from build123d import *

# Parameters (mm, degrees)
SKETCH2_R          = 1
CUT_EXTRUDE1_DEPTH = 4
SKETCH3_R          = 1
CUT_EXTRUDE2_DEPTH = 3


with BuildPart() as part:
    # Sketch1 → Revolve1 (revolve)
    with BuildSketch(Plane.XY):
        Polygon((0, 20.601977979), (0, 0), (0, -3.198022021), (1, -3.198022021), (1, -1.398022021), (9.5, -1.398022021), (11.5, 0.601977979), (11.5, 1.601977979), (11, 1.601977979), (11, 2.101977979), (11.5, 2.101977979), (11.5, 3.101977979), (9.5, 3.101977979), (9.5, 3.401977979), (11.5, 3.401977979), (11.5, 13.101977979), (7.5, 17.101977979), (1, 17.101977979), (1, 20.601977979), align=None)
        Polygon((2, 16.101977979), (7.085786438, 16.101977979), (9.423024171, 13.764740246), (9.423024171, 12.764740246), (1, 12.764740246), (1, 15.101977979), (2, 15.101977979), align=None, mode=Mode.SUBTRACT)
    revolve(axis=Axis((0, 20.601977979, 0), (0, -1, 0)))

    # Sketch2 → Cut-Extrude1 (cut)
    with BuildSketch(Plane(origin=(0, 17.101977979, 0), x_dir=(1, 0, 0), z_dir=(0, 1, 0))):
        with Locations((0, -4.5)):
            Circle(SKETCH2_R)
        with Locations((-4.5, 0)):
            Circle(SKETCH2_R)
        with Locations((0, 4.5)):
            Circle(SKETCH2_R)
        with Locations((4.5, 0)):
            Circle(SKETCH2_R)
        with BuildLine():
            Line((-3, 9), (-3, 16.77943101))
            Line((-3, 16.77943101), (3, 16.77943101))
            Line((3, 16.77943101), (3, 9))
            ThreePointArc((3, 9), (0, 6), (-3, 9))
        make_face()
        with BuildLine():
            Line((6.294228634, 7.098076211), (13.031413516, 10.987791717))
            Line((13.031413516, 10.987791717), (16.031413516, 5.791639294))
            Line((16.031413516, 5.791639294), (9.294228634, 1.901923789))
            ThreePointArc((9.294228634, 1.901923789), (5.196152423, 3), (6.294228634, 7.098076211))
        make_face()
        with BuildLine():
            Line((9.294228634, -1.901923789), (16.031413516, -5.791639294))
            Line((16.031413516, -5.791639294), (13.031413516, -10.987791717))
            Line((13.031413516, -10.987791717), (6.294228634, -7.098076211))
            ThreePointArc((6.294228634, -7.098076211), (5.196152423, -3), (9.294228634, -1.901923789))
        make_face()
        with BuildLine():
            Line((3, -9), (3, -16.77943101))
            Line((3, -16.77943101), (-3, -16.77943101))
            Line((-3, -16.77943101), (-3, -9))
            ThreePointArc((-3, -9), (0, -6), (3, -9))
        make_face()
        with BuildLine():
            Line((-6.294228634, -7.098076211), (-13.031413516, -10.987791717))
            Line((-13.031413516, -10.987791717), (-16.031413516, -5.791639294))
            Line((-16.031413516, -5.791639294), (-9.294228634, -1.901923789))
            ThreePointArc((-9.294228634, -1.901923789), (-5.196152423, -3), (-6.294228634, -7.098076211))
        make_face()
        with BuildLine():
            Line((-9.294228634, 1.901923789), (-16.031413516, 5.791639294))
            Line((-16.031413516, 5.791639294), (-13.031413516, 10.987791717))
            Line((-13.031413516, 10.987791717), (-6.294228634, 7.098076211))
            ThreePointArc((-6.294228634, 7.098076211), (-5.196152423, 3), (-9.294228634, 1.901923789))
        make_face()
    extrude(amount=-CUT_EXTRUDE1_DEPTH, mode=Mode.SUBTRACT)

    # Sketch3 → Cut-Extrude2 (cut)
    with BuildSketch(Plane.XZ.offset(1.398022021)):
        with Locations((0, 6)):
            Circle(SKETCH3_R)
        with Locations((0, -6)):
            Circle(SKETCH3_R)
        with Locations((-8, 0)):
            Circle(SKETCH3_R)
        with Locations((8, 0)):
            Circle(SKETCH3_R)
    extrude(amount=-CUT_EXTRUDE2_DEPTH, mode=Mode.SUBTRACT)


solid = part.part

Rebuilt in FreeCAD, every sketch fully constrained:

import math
import FreeCAD as App
import Part
import Sketcher

V = App.Vector
Q = App.Units.Quantity


def add_polygon(sketch, points):
    """Adds a closed chain of lines whose ends are joined by coincident constraints."""
    first, n = sketch.GeometryCount, len(points)
    for a, b in zip(points, points[1:] + points[:1]):
        sketch.addGeometry(Part.LineSegment(App.Vector(*a, 0), App.Vector(*b, 0)), False)
    for i in range(n):
        sketch.addConstraint(Sketcher.Constraint("Coincident", first + i, 2, first + (i + 1) % n, 1))

doc = App.newDocument("Part")
body = doc.addObject("PartDesign::Body", "Body")

sketch1 = body.newObject("Sketcher::SketchObject", "Sketch")
sketch1.AttachmentSupport = (doc.getObject("XY_Plane"), [""])
sketch1.MapMode = "FlatFace"
add_polygon(sketch1, [(0, 20.6), (0, -3.2), (1, -3.2), (1, -1.4), (9.5, -1.4), (11.5, 0.6), (11.5, 1.6), (11, 1.6), (11, 2.1), (11.5, 2.1), (11.5, 3.1), (9.5, 3.1), (9.5, 3.4), (11.5, 3.4), (11.5, 13.1), (7.5, 17.1), (1, 17.1), (1, 20.6)])
add_polygon(sketch1, [(2, 15.1), (2, 16.1), (7.09, 16.1), (9.42, 13.76), (9.42, 12.76), (1, 12.76), (1, 15.1)])
sketch1.addConstraint([
    Sketcher.Constraint("Vertical", 0),
    Sketcher.Constraint("Horizontal", 1),
    Sketcher.Constraint("Vertical", 2),
    Sketcher.Constraint("Horizontal", 3),
    Sketcher.Constraint("Vertical", 5),
    Sketcher.Constraint("Horizontal", 6),
    Sketcher.Constraint("Vertical", 7),
    Sketcher.Constraint("Horizontal", 8),
    Sketcher.Constraint("Vertical", 9),
    Sketcher.Constraint("Horizontal", 10),
    Sketcher.Constraint("Vertical", 11),
    Sketcher.Constraint("Horizontal", 12),
    Sketcher.Constraint("Vertical", 13),
    Sketcher.Constraint("Horizontal", 15),
    Sketcher.Constraint("Vertical", 16),
    Sketcher.Constraint("Horizontal", 17),
    Sketcher.Constraint("Vertical", 18),
    Sketcher.Constraint("Horizontal", 19),
    Sketcher.Constraint("Vertical", 21),
    Sketcher.Constraint("Horizontal", 22),
    Sketcher.Constraint("Vertical", 23),
    Sketcher.Constraint("Horizontal", 24),
    Sketcher.Constraint("PointOnObject", 0, 2, -2),
    Sketcher.Constraint("Perpendicular", 4, 14),
    Sketcher.Constraint("Parallel", 14, 20),
    Sketcher.Constraint("Vertical", 5, 2, 8, 2),
    Sketcher.Constraint("Vertical", 3, 2, 10, 2),
    Sketcher.Constraint("Vertical", 9, 2, 12, 2),
    Sketcher.Constraint("Vertical", 2, 2, 15, 2),
    Sketcher.Constraint("Vertical", 16, 2, 22, 2),
    Sketcher.Constraint("Equal", 17, 24),
    Sketcher.Constraint("Equal", 24, 5),
    Sketcher.Constraint("Equal", 8, 7),
    Sketcher.Constraint("Equal", 5, 9),
    Sketcher.Constraint("Equal", 9, 18),
    Sketcher.Constraint("Equal", 18, 21),
    Sketcher.Constraint("DistanceX", 1, 1, 1, 2, Q("1 mm")),
    Sketcher.Constraint("DistanceX", 10, 2, 10, 1, Q("2 mm")),
    Sketcher.Constraint("Angle", 4, Q("45 deg")),
    Sketcher.Constraint("DistanceX", 3, 1, 3, 2, Q("8.5 mm")),
    Sketcher.Constraint("DistanceX", 6, 2, 6, 1, Q("0.5 mm")),
    Sketcher.Constraint("DistanceX", 15, 2, 15, 1, Q("6.5 mm")),
    Sketcher.Constraint("DistanceY", 0, 2, 0, 1, Q("23.8 mm")),
    Sketcher.Constraint("DistanceY", 2, 1, 2, 2, Q("1.8 mm")),
    Sketcher.Constraint("DistanceY", 11, 1, 11, 2, Q("0.3 mm")),
    Sketcher.Constraint("DistanceY", 13, 1, 13, 2, Q("9.7 mm")),
    Sketcher.Constraint("DistanceY", 18, 2, 15, 2, Q("1 mm")),
    Sketcher.Constraint("DistanceX", 19, 1, 19, 2, Q("5.085786 mm")),
    Sketcher.Constraint("DistanceX", 22, 2, 22, 1, Q("8.423024 mm")),
    Sketcher.Constraint("DistanceY", -1, 1, 20, 2, Q("13.76474 mm")),
])
revolution = body.newObject("PartDesign::Revolution", "Revolution")
revolution.Profile = sketch1
revolution.ReferenceAxis = (sketch1, ["V_Axis"])
revolution.Angle = 360

sketch2 = body.newObject("Sketcher::SketchObject", "Sketch001")
sketch2.AttachmentSupport = (doc.getObject("XZ_Plane"), [""])
sketch2.MapMode = "FlatFace"
sketch2.AttachmentOffset = App.Placement(V(0, 0, -17.101978), App.Rotation())
sketch2.addGeometry([
    Part.Circle(V(0, 4.5, 0), V(0, 0, 1), 1),
    Part.Circle(V(-4.5, 0, 0), V(0, 0, 1), 1),
    Part.Circle(V(0, -4.5, 0), V(0, 0, 1), 1),
    Part.Circle(V(4.5, 0, 0), V(0, 0, 1), 1),
    Part.LineSegment(V(-3, -16.8, 0), V(-3, -9, 0)),
    Part.ArcOfCircle(Part.Circle(V(0, -9, 0), V(0, 0, 1), 3), math.radians(0), math.radians(180)),
    Part.LineSegment(V(3, -9, 0), V(3, -16.8, 0)),
    Part.LineSegment(V(3, -16.8, 0), V(-3, -16.8, 0)),
    Part.LineSegment(V(13, -11, 0), V(6.3, -7.1, 0)),
    Part.ArcOfCircle(Part.Circle(V(7.8, -4.5, 0), V(0, 0, 1), 3), math.radians(60), math.radians(240)),
    Part.LineSegment(V(9.3, -1.9, 0), V(16, -5.8, 0)),
    Part.LineSegment(V(16, -5.8, 0), V(13, -11, 0)),
    Part.LineSegment(V(16, 5.8, 0), V(9.3, 1.9, 0)),
    Part.ArcOfCircle(Part.Circle(V(7.8, 4.5, 0), V(0, 0, 1), 3), math.radians(120), math.radians(300)),
    Part.LineSegment(V(6.3, 7.1, 0), V(13, 11, 0)),
    Part.LineSegment(V(13, 11, 0), V(16, 5.8, 0)),
    Part.LineSegment(V(3, 16.8, 0), V(3, 9, 0)),
    Part.ArcOfCircle(Part.Circle(V(0, 9, 0), V(0, 0, 1), 3), math.radians(180), math.radians(360)),
    Part.LineSegment(V(-3, 9, 0), V(-3, 16.8, 0)),
    Part.LineSegment(V(-3, 16.8, 0), V(3, 16.8, 0)),
    Part.LineSegment(V(-13, 11, 0), V(-6.3, 7.1, 0)),
    Part.ArcOfCircle(Part.Circle(V(-7.8, 4.5, 0), V(0, 0, 1), 3), math.radians(-120), math.radians(60)),
    Part.LineSegment(V(-9.3, 1.9, 0), V(-16, 5.8, 0)),
    Part.LineSegment(V(-16, 5.8, 0), V(-13, 11, 0)),
    Part.LineSegment(V(-16, -5.8, 0), V(-9.3, -1.9, 0)),
    Part.ArcOfCircle(Part.Circle(V(-7.8, -4.5, 0), V(0, 0, 1), 3), math.radians(-60), math.radians(120)),
    Part.LineSegment(V(-6.3, -7.1, 0), V(-13, -11, 0)),
    Part.LineSegment(V(-13, -11, 0), V(-16, -5.8, 0)),
], False)
sketch2.addConstraint([
    Sketcher.Constraint("Tangent", 4, 2, 5, 2),
    Sketcher.Constraint("Tangent", 5, 1, 6, 1),
    Sketcher.Constraint("Coincident", 6, 2, 7, 1),
    Sketcher.Constraint("Coincident", 7, 2, 4, 1),
    Sketcher.Constraint("Tangent", 8, 2, 9, 2),
    Sketcher.Constraint("Tangent", 9, 1, 10, 1),
    Sketcher.Constraint("Coincident", 10, 2, 11, 1),
    Sketcher.Constraint("Coincident", 11, 2, 8, 1),
    Sketcher.Constraint("Tangent", 12, 2, 13, 2),
    Sketcher.Constraint("Tangent", 13, 1, 14, 1),
    Sketcher.Constraint("Coincident", 14, 2, 15, 1),
    Sketcher.Constraint("Coincident", 15, 2, 12, 1),
    Sketcher.Constraint("Tangent", 16, 2, 17, 2),
    Sketcher.Constraint("Tangent", 17, 1, 18, 1),
    Sketcher.Constraint("Coincident", 18, 2, 19, 1),
    Sketcher.Constraint("Coincident", 19, 2, 16, 1),
    Sketcher.Constraint("Tangent", 20, 2, 21, 2),
    Sketcher.Constraint("Tangent", 21, 1, 22, 1),
    Sketcher.Constraint("Coincident", 22, 2, 23, 1),
    Sketcher.Constraint("Coincident", 23, 2, 20, 1),
    Sketcher.Constraint("Tangent", 24, 2, 25, 2),
    Sketcher.Constraint("Tangent", 25, 1, 26, 1),
    Sketcher.Constraint("Coincident", 26, 2, 27, 1),
    Sketcher.Constraint("Coincident", 27, 2, 24, 1),
    Sketcher.Constraint("Vertical", 4),
    Sketcher.Constraint("Vertical", 6),
    Sketcher.Constraint("Horizontal", 7),
    Sketcher.Constraint("Vertical", 16),
    Sketcher.Constraint("Vertical", 18),
    Sketcher.Constraint("Horizontal", 19),
    Sketcher.Constraint("Equal", 0, 1),
    Sketcher.Constraint("Equal", 1, 2),
    Sketcher.Constraint("Equal", 2, 3),
    Sketcher.Constraint("Equal", 5, 9),
    Sketcher.Constraint("Equal", 9, 13),
    Sketcher.Constraint("Equal", 13, 17),
    Sketcher.Constraint("Equal", 17, 21),
    Sketcher.Constraint("Equal", 21, 25),
    Sketcher.Constraint("Symmetric", 0, 3, 2, 3, -1, 1),
    Sketcher.Constraint("Symmetric", 1, 3, 3, 3, -1, 1),
    Sketcher.Constraint("Symmetric", 5, 3, 17, 3, -1, 1),
    Sketcher.Constraint("Symmetric", 9, 3, 21, 3, -1, 1),
    Sketcher.Constraint("Symmetric", 13, 3, 25, 3, -1, 1),
    Sketcher.Constraint("Symmetric", 10, 2, 22, 2, -1, 1),
    Sketcher.Constraint("Symmetric", 11, 2, 23, 2, -1, 1),
    Sketcher.Constraint("Symmetric", 14, 2, 26, 2, -1, 1),
    Sketcher.Constraint("Symmetric", 15, 2, 27, 2, -1, 1),
    Sketcher.Constraint("Symmetric", 13, 3, 21, 3, -2),
    Sketcher.Constraint("Symmetric", 15, 2, 22, 2, -2),
    Sketcher.Constraint("Symmetric", 14, 2, 23, 2, -2),
    Sketcher.Constraint("Symmetric", 7, 2, 18, 2, -1),
    Sketcher.Constraint("PointOnObject", 0, 3, -2),
    Sketcher.Constraint("PointOnObject", 1, 3, -1),
    Sketcher.Constraint("Parallel", 8, 10),
    Sketcher.Constraint("Perpendicular", 10, 11),
    Sketcher.Constraint("Horizontal", 2, 3, 9, 3),
    Sketcher.Constraint("Diameter", 0, Q("2 mm")),
    Sketcher.Constraint("Radius", 5, Q("3 mm")),
    Sketcher.Constraint("Angle", 8, Q("150 deg")),
    Sketcher.Constraint("DistanceY", 5, 3, -1, 1, Q("9 mm")),
    Sketcher.Constraint("DistanceY", 2, 3, 0, 3, Q("9 mm")),
    Sketcher.Constraint("DistanceX", 1, 3, 3, 3, Q("9 mm")),
    Sketcher.Constraint("DistanceY", 4, 1, 4, 2, Q("7.779431 mm")),
    Sketcher.Constraint("Distance", 8, Q("7.779431 mm")),
    Sketcher.Constraint("DistanceX", -1, 1, 9, 3, Q("7.794229 mm")),
])
pocket1 = body.newObject("PartDesign::Pocket", "Pocket")
pocket1.Profile = sketch2
pocket1.Length = 4
pocket1.Reversed = True

sketch3 = body.newObject("Sketcher::SketchObject", "Sketch002")
sketch3.AttachmentSupport = (doc.getObject("XZ_Plane"), [""])
sketch3.MapMode = "FlatFace"
sketch3.AttachmentOffset = App.Placement(V(0, 0, 1.398022), App.Rotation())
sketch3.addGeometry([
    Part.Circle(V(0, 6, 0), V(0, 0, 1), 1),
    Part.Circle(V(0, -6, 0), V(0, 0, 1), 1),
    Part.Circle(V(-8, 0, 0), V(0, 0, 1), 1),
    Part.Circle(V(8, 0, 0), V(0, 0, 1), 1),
], False)
sketch3.addConstraint([
    Sketcher.Constraint("Equal", 0, 1),
    Sketcher.Constraint("Equal", 1, 2),
    Sketcher.Constraint("Equal", 2, 3),
    Sketcher.Constraint("Symmetric", 0, 3, 1, 3, -1, 1),
    Sketcher.Constraint("Symmetric", 2, 3, 3, 3, -1, 1),
    Sketcher.Constraint("PointOnObject", 0, 3, -2),
    Sketcher.Constraint("PointOnObject", 2, 3, -1),
    Sketcher.Constraint("Diameter", 0, Q("2 mm")),
    Sketcher.Constraint("DistanceY", -1, 1, 0, 3, Q("6 mm")),
    Sketcher.Constraint("DistanceX", 2, 3, -1, 1, Q("8 mm")),
])
pocket2 = body.newObject("PartDesign::Pocket", "Pocket001")
pocket2.Profile = sketch3
pocket2.Length = 3

doc.recompute()
